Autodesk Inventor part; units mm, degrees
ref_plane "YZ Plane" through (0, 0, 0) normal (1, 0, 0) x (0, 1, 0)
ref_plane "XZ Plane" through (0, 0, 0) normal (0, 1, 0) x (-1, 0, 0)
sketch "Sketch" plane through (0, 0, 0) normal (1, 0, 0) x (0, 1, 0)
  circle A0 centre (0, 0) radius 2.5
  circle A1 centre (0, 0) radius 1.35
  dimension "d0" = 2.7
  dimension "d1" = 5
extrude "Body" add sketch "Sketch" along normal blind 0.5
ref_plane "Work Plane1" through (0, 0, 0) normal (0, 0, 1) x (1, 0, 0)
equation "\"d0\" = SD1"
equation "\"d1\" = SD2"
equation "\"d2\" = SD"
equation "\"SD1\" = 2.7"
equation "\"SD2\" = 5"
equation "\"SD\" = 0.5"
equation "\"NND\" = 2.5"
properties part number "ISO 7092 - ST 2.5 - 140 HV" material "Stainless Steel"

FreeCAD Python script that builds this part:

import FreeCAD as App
import Part
import Sketcher
from FreeCAD import Vector

doc = App.newDocument("Part")
body = doc.addObject("PartDesign::Body", "Body")

# Sketch on YZ plane
sketch1 = body.newObject("Sketcher::SketchObject", "Sketch")
sketch1.AttachmentSupport = (doc.getObject("YZ_Plane"), [""])
sketch1.MapMode = "FlatFace"
sketch1.addGeometry(Part.Circle(Vector(0, 0, 0), Vector(0, 0, 1), 2.5), False)
sketch1.addGeometry(Part.Circle(Vector(0, 0, 0), Vector(0, 0, 1), 1.4), False)
sketch1.addConstraint(Sketcher.Constraint("Coincident", 0, 3, -1, 1))
sketch1.addConstraint(Sketcher.Constraint("Coincident", 1, 3, -1, 1))
sketch1.addConstraint(Sketcher.Constraint("Diameter", 0, 5.0))
sketch1.addConstraint(Sketcher.Constraint("Diameter", 1, 2.7))
pad1 = body.newObject("PartDesign::Pad", "Pad")
pad1.Profile = sketch1
pad1.Length = 0.5

doc.recompute()
